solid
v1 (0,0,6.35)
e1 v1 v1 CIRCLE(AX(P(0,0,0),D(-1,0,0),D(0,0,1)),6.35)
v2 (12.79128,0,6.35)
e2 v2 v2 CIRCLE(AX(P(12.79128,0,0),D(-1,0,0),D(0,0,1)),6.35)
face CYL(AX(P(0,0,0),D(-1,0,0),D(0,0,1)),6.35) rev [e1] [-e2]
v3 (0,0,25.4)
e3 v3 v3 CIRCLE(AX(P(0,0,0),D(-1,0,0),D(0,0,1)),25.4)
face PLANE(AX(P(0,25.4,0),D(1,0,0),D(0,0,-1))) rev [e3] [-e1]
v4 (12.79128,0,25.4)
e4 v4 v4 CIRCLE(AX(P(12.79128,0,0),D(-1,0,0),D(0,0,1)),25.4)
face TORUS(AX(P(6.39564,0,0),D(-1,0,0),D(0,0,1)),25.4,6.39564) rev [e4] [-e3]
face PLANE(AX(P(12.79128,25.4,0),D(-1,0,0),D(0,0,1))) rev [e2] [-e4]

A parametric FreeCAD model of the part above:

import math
import FreeCAD as App
import Part
import Sketcher

V = App.Vector
Q = App.Units.Quantity

doc = App.newDocument("Part")
params = doc.addObject("Spreadsheet::Sheet", "Params")
for row, (alias, value) in enumerate([
    ("sketch1_height", "0.75 in"),
    ("sketch2_diameter", "2 in"),
], start=1):
    params.set(f"A{row}", alias)
    params.set(f"B{row}", "=" + value)
    params.setAlias(f"B{row}", alias)

body = doc.addObject("PartDesign::Body", "Body")

# Sketch on XY plane
sketch1 = body.newObject("Sketcher::SketchObject", "Sketch")
sketch1.AttachmentSupport = (doc.getObject("XY_Plane"), [""])
sketch1.MapMode = "FlatFace"
sketch1.addGeometry(Part.LineSegment(V(0, 25, 0), V(0, 6, 0)), False)
sketch1.addGeometry(Part.LineSegment(V(0, 6, 0), V(13, 6, 0)), False)
sketch1.addGeometry(Part.LineSegment(V(13, 6, 0), V(13, 25, 0)), False)
sketch1.addGeometry(Part.ArcOfCircle(Part.Circle(V(6, 25, 0), V(0, 0, 1), 6), math.radians(180), math.radians(360)), False)
sketch1.addConstraint(Sketcher.Constraint("Coincident", 0, 2, 1, 1))
sketch1.addConstraint(Sketcher.Constraint("Coincident", 1, 2, 2, 1))
sketch1.addConstraint(Sketcher.Constraint("Tangent", 2, 2, 3, 2))
sketch1.addConstraint(Sketcher.Constraint("Tangent", 3, 1, 0, 1))
sketch1.addConstraint(Sketcher.Constraint("Vertical", 0))
sketch1.addConstraint(Sketcher.Constraint("Horizontal", 1))
sketch1.addConstraint(Sketcher.Constraint("Vertical", 2))
sketch1.addConstraint(Sketcher.Constraint("PointOnObject", 0, 2, -2))
sketch1.addConstraint(Sketcher.Constraint("DistanceY", -1, 1, 3, 3, Q("1 in")))
sketch1.addConstraint(Sketcher.Constraint("DistanceY", 0, 2, 0, 1, Q("0.75 in")))
sketch1.addConstraint(Sketcher.Constraint("Radius", 3, Q("6.39564 mm")))
sketch1.setExpression("Constraints[9]", "Params.sketch1_height")

# Sketch on YZ plane
sketch2 = body.newObject("Sketcher::SketchObject", "Sketch001")
sketch2.AttachmentSupport = (doc.getObject("YZ_Plane"), [""])
sketch2.MapMode = "FlatFace"
sketch2.addGeometry(Part.Circle(V(0, 0, 0), V(0, 0, 1), 25), False)
sketch2.addConstraint(Sketcher.Constraint("Coincident", 0, 3, -1, 1))
sketch2.addConstraint(Sketcher.Constraint("Diameter", 0, Q("2 in")))
sketch2.setExpression("Constraints[1]", "Params.sketch2_diameter")
doc.recompute()

additivepipe = body.newObject("PartDesign::AdditivePipe", "AdditivePipe")
additivepipe.Profile = sketch1
additivepipe.Spine = (sketch2, ["Edge1"])

doc.recompute()
